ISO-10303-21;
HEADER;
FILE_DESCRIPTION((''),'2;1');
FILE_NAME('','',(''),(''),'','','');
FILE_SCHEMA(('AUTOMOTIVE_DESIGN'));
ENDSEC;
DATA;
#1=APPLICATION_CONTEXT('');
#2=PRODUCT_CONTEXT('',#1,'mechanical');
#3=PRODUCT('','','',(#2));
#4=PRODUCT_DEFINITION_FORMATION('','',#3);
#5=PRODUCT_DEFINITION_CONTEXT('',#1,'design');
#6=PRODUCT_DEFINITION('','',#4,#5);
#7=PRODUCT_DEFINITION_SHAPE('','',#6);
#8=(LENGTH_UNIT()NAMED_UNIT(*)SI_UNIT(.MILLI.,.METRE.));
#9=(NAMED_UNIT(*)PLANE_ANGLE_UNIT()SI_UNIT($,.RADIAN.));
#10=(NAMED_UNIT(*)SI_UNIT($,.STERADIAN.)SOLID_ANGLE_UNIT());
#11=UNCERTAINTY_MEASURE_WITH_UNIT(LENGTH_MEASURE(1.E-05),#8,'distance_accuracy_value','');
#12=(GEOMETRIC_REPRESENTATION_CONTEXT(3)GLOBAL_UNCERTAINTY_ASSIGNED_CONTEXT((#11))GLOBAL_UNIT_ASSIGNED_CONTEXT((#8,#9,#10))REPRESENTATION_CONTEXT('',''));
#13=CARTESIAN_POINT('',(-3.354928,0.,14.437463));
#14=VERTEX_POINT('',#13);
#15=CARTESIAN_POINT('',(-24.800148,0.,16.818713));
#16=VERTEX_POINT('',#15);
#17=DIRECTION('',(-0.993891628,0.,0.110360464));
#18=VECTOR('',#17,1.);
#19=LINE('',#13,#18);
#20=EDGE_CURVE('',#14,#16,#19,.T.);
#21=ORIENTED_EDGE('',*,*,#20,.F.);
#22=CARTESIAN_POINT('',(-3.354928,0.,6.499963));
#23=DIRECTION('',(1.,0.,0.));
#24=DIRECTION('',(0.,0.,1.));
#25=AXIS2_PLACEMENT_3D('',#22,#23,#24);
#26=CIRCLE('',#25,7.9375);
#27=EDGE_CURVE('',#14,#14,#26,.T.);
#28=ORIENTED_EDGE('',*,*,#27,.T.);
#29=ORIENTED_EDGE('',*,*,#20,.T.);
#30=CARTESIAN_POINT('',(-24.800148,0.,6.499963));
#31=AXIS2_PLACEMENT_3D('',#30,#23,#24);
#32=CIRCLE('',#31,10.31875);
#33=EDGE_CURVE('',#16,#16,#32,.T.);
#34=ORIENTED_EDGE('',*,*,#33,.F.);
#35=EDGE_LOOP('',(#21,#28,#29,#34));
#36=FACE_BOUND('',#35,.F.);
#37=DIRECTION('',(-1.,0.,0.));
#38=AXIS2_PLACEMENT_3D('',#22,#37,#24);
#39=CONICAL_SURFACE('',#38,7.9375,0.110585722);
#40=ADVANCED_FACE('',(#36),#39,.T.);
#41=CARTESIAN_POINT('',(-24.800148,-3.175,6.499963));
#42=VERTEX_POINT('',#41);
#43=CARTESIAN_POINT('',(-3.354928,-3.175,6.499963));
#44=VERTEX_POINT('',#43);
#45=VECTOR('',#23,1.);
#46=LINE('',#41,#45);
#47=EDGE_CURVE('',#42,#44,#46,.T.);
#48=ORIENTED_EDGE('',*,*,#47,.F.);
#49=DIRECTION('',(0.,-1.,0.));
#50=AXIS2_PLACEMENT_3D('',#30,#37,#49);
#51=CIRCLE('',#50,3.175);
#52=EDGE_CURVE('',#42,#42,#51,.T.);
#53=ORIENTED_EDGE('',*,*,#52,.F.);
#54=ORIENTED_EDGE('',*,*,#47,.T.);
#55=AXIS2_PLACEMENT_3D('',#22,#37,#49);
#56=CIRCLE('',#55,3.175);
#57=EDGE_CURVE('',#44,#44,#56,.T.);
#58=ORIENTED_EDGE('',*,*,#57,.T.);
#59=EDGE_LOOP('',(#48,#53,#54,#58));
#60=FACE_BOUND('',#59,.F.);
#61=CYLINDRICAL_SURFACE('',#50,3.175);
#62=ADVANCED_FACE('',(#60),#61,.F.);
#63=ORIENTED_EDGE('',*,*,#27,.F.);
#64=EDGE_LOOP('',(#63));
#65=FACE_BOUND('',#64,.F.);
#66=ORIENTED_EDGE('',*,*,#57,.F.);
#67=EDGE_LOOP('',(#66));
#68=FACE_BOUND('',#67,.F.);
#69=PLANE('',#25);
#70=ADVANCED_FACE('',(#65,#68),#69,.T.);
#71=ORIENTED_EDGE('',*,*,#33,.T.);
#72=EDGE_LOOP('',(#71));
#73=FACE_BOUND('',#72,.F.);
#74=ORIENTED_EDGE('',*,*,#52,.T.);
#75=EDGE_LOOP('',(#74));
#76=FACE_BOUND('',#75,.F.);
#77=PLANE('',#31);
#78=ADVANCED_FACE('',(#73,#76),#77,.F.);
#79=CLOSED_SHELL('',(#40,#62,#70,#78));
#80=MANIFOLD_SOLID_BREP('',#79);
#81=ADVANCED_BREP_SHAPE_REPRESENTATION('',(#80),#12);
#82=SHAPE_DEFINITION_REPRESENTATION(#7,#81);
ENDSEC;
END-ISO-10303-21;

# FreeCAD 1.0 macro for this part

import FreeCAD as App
import Part
import Sketcher
Q = App.Units.Quantity


def add_polygon(sketch, points):
    """Adds a closed chain of lines whose ends are joined by coincident constraints."""
    first, n = sketch.GeometryCount, len(points)
    for a, b in zip(points, points[1:] + points[:1]):
        sketch.addGeometry(Part.LineSegment(App.Vector(*a, 0), App.Vector(*b, 0)), False)
    for i in range(n):
        sketch.addConstraint(Sketcher.Constraint("Coincident", first + i, 2, first + (i + 1) % n, 1))

doc = App.newDocument("Part")
body = doc.addObject("PartDesign::Body", "Body")

# Sketch on XZ plane
sketch1 = body.newObject("Sketcher::SketchObject", "Sketch")
sketch1.AttachmentSupport = (doc.getObject("XZ_Plane"), [""])
sketch1.MapMode = "FlatFace"
add_polygon(sketch1, [(-3, 14), (-25, 17), (-25, 6), (-3, 6)])  # lines 0-3
sketch1.addGeometry(Part.LineSegment(App.Vector(-25, 6, 0), App.Vector(-3, 6, 0)), True)  # axis
sketch1.addConstraint(Sketcher.Constraint("Vertical", 1))
sketch1.addConstraint(Sketcher.Constraint("Horizontal", 2))
sketch1.addConstraint(Sketcher.Constraint("Vertical", 3))
sketch1.addConstraint(Sketcher.Constraint("Horizontal", 4))
sketch1.addConstraint(Sketcher.Constraint("Coincident", 4, 1, 1, 2))
sketch1.addConstraint(Sketcher.Constraint("Vertical", 3, 2, 4, 2))
sketch1.addConstraint(Sketcher.Constraint("DistanceY", 1, 2, 1, 1, Q("0.40625 in")))
sketch1.addConstraint(Sketcher.Constraint("DistanceY", 3, 1, 3, 2, Q("0.3125 in")))
sketch1.addConstraint(Sketcher.Constraint("DistanceX", 2, 1, 2, 2, Q("0.8443 in")))
sketch1.addConstraint(Sketcher.Constraint("DistanceX", 0, 2, -1, 1, 24.800148))
sketch1.addConstraint(Sketcher.Constraint("DistanceY", -1, 1, 0, 2, 16.818713))
revolution = body.newObject("PartDesign::Revolution", "Revolution")
revolution.Profile = sketch1
revolution.ReferenceAxis = (sketch1, ["Axis0"])
revolution.Angle = 360

# Sketch on YZ plane
sketch2 = body.newObject("Sketcher::SketchObject", "Sketch001")
sketch2.AttachmentSupport = (doc.getObject("YZ_Plane"), [""])
sketch2.MapMode = "FlatFace"
sketch2.AttachmentOffset = App.Placement(App.Vector(0, 0, -24.800148), App.Rotation())
sketch2.addGeometry(Part.Circle(App.Vector(0, 6.5, 0), App.Vector(0, 0, 1), 3.2), False)
sketch2.addConstraint(Sketcher.Constraint("PointOnObject", 0, 3, -2))
sketch2.addConstraint(Sketcher.Constraint("Diameter", 0, Q("0.25 in")))
sketch2.addConstraint(Sketcher.Constraint("DistanceY", -1, 1, 0, 3, 6.499963))
pocket1 = body.newObject("PartDesign::Pocket", "Pocket")
pocket1.Profile = sketch2
pocket1.Length = Q("1 in")
pocket1.Reversed = True

doc.recompute()
